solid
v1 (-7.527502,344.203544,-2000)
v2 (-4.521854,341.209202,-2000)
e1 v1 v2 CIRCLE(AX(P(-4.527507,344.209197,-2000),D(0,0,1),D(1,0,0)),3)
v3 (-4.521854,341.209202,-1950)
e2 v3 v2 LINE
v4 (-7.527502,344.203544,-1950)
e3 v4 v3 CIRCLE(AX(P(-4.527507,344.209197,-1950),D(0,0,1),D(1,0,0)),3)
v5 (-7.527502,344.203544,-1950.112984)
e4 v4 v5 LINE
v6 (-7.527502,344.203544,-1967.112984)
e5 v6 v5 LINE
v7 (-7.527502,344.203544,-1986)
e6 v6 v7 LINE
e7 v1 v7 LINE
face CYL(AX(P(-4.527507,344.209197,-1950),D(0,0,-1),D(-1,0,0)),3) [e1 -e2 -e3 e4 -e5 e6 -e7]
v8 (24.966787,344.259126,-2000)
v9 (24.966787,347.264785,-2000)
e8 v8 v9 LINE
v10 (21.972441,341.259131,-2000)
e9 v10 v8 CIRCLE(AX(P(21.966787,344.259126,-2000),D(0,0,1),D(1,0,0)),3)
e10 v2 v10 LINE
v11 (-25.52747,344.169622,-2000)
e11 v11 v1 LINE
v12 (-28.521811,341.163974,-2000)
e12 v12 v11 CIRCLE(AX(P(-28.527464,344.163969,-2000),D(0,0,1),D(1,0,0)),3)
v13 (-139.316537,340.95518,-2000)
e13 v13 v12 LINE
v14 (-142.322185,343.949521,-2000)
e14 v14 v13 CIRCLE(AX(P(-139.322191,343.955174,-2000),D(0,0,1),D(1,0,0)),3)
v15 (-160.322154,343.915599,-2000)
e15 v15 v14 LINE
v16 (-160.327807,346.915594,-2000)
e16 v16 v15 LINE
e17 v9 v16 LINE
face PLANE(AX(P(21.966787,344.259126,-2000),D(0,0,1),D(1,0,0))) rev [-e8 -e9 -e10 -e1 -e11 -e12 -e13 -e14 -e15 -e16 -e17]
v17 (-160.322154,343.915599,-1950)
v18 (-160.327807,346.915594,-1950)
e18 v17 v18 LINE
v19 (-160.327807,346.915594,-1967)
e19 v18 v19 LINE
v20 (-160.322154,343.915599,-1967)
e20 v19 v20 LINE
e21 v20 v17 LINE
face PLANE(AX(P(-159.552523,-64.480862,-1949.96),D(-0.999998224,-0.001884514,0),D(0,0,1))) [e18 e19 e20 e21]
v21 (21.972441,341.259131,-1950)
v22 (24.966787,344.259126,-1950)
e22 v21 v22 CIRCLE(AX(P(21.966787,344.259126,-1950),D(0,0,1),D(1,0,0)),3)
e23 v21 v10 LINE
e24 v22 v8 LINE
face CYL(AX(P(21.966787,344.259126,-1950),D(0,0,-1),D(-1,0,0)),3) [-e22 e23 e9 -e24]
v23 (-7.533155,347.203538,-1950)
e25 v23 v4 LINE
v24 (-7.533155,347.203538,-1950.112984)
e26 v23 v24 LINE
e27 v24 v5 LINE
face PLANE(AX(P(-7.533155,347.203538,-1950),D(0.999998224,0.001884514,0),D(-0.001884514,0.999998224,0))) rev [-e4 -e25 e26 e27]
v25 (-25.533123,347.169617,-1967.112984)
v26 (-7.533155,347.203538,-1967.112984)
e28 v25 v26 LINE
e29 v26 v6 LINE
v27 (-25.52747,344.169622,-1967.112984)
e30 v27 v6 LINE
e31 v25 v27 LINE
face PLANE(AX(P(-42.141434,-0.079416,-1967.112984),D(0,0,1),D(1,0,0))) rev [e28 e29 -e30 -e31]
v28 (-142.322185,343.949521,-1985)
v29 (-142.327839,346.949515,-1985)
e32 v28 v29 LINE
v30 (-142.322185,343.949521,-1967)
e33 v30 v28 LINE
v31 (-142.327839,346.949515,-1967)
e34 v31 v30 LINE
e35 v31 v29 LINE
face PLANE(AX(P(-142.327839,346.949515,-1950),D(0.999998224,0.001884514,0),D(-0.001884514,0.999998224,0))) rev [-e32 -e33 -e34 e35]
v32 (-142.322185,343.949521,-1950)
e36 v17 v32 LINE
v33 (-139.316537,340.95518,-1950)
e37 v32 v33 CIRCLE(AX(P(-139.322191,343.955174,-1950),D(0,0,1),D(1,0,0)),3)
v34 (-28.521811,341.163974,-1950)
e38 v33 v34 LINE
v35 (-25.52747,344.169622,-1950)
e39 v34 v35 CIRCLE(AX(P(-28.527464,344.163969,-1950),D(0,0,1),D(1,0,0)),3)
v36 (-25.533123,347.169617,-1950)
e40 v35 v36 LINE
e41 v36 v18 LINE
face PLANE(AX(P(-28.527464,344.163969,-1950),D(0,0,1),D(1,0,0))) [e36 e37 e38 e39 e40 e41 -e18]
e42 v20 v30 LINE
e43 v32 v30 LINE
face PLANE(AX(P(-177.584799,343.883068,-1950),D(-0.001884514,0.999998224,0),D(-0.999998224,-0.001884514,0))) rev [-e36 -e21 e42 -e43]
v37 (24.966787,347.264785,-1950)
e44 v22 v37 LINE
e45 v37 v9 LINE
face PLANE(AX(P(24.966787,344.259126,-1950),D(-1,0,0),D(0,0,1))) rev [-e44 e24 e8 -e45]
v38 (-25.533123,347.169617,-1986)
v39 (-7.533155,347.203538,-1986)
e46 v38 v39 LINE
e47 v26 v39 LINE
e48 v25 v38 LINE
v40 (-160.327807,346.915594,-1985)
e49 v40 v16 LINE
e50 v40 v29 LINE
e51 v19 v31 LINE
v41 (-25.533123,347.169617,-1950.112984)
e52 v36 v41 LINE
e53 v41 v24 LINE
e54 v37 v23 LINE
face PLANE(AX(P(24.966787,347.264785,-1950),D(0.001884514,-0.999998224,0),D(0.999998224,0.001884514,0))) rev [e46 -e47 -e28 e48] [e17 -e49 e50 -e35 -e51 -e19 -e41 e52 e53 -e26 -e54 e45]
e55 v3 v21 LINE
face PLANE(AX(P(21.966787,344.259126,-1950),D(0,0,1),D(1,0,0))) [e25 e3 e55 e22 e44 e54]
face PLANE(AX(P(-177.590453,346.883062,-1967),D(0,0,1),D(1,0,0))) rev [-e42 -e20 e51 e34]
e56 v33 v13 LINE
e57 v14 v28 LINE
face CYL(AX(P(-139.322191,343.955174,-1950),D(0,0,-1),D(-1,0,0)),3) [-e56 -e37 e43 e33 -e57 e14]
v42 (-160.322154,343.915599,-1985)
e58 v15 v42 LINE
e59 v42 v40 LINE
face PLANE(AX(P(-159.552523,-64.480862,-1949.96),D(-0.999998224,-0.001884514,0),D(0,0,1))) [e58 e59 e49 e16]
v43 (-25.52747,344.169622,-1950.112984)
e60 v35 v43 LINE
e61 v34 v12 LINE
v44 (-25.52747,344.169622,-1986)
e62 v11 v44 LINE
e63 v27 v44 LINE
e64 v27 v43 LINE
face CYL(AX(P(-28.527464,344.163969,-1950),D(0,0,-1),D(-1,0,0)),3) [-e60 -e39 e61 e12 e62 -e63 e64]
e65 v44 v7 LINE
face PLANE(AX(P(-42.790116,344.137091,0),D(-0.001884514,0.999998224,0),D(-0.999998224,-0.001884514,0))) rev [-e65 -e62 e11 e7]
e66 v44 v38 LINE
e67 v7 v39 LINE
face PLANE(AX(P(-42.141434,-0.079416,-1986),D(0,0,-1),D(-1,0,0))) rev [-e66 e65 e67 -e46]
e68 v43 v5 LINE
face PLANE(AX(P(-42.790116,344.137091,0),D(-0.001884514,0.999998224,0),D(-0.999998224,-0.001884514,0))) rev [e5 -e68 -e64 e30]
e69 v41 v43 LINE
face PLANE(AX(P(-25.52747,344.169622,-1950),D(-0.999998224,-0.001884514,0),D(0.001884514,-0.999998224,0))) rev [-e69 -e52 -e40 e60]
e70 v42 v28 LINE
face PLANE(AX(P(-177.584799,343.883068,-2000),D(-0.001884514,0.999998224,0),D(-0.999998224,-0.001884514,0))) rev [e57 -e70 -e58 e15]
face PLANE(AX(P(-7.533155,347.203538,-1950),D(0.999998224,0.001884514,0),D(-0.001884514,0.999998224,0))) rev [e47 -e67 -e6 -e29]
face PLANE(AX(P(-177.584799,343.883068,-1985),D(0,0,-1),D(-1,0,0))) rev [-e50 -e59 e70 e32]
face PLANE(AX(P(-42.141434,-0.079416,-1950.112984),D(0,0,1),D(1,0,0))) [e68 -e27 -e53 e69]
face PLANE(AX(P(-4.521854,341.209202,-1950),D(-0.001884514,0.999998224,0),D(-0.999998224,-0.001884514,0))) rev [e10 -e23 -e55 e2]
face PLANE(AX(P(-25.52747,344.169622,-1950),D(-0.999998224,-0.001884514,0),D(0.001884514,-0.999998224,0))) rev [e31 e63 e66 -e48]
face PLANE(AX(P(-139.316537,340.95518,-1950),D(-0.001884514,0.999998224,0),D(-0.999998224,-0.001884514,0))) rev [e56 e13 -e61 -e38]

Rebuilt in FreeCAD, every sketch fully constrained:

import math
import FreeCAD as App
import Part
import Sketcher

doc = App.newDocument("Part")
body = doc.addObject("PartDesign::Body", "Body")

# Sketch on XY plane
sketch1 = body.newObject("Sketcher::SketchObject", "Sketch")
sketch1.AttachmentSupport = (doc.getObject("XY_Plane"), [""])
sketch1.MapMode = "FlatFace"
sketch1.AttachmentOffset = App.Placement(App.Vector(0, 0, -2000), App.Rotation())
sketch1.addGeometry(Part.LineSegment(App.Vector(24.966787, 344.259126, 0), App.Vector(24.966787, 347.264785, 0)), False)
sketch1.addGeometry(Part.LineSegment(App.Vector(24.966787, 347.264785, 0), App.Vector(-7.533155, 347.203538, 0)), False)
sketch1.addGeometry(Part.LineSegment(App.Vector(-7.533155, 347.203538, 0), App.Vector(-7.527502, 344.203544, 0)), False)
sketch1.addGeometry(Part.ArcOfCircle(Part.Circle(App.Vector(-4.527507, 344.209197, 0), App.Vector(0, 0, 1), 3), math.radians(-179.892025), math.radians(-89.892025)), False)
sketch1.addGeometry(Part.LineSegment(App.Vector(-4.521854, 341.209202, 0), App.Vector(21.972441, 341.259131, 0)), False)
sketch1.addGeometry(Part.ArcOfCircle(Part.Circle(App.Vector(21.966787, 344.259126, 0), App.Vector(0, 0, 1), 3), math.radians(-89.892025), math.radians(0)), False)
sketch1.addConstraint(Sketcher.Constraint("Coincident", 0, 2, 1, 1))
sketch1.addConstraint(Sketcher.Constraint("Coincident", 1, 2, 2, 1))
sketch1.addConstraint(Sketcher.Constraint("Tangent", 2, 2, 3, 1))
sketch1.addConstraint(Sketcher.Constraint("Tangent", 3, 2, 4, 1))
sketch1.addConstraint(Sketcher.Constraint("Tangent", 4, 2, 5, 1))
sketch1.addConstraint(Sketcher.Constraint("Tangent", 5, 2, 0, 1))
sketch1.addConstraint(Sketcher.Constraint("Vertical", 0))
sketch1.addConstraint(Sketcher.Constraint("Equal", 3, 5))
sketch1.addConstraint(Sketcher.Constraint("Perpendicular", 1, 2))
sketch1.addConstraint(Sketcher.Constraint("Perpendicular", 2, 4))
sketch1.addConstraint(Sketcher.Constraint("Radius", 3, 3.0))
sketch1.addConstraint(Sketcher.Constraint("Distance", 2, 3.0))
sketch1.addConstraint(Sketcher.Constraint("Distance", 1, 32.5))
sketch1.addConstraint(Sketcher.Constraint("DistanceY", 0, 1, 0, 2, 3.005659))
sketch1.addConstraint(Sketcher.Constraint("DistanceX", 2, 2, -1, 1, 7.527502))
sketch1.addConstraint(Sketcher.Constraint("DistanceY", -1, 1, 1, 2, 347.203538))
pad1 = body.newObject("PartDesign::Pad", "Pad")
pad1.Profile = sketch1
pad1.Length = 50
body2 = doc.addObject("PartDesign::Body", "Body001")

# Sketch on XY plane
sketch2 = body2.newObject("Sketcher::SketchObject", "Sketch001")
sketch2.AttachmentSupport = (doc.getObject("XY_Plane001"), [""])
sketch2.MapMode = "FlatFace"
sketch2.AttachmentOffset = App.Placement(App.Vector(0, 0, -2000), App.Rotation())
sketch2.addGeometry(Part.LineSegment(App.Vector(-25.5, 344.2, 0), App.Vector(-25.5, 347.2, 0)), False)
sketch2.addGeometry(Part.LineSegment(App.Vector(-25.5, 347.2, 0), App.Vector(-142.3, 346.9, 0)), False)
sketch2.addGeometry(Part.LineSegment(App.Vector(-142.3, 346.9, 0), App.Vector(-142.3, 343.9, 0)), False)
sketch2.addGeometry(Part.ArcOfCircle(Part.Circle(App.Vector(-139.3, 344, 0), App.Vector(0, 0, 1), 3), math.radians(-180), math.radians(-90)), False)
sketch2.addGeometry(Part.LineSegment(App.Vector(-139.3, 341, 0), App.Vector(-28.5, 341.2, 0)), False)
sketch2.addGeometry(Part.ArcOfCircle(Part.Circle(App.Vector(-28.5, 344.2, 0), App.Vector(0, 0, 1), 3), math.radians(-90), math.radians(0)), False)
sketch2.addConstraint(Sketcher.Constraint("Coincident", 0, 2, 1, 1))
sketch2.addConstraint(Sketcher.Constraint("Coincident", 1, 2, 2, 1))
sketch2.addConstraint(Sketcher.Constraint("Tangent", 2, 2, 3, 1))
sketch2.addConstraint(Sketcher.Constraint("Tangent", 3, 2, 4, 1))
sketch2.addConstraint(Sketcher.Constraint("Tangent", 4, 2, 5, 1))
sketch2.addConstraint(Sketcher.Constraint("Tangent", 5, 2, 0, 1))
sketch2.addConstraint(Sketcher.Constraint("Equal", 3, 5))
sketch2.addConstraint(Sketcher.Constraint("Perpendicular", 0, 1))
sketch2.addConstraint(Sketcher.Constraint("Perpendicular", 1, 2))
sketch2.addConstraint(Sketcher.Constraint("Perpendicular", 2, 4))
sketch2.addConstraint(Sketcher.Constraint("Radius", 3, 3.0))
sketch2.addConstraint(Sketcher.Constraint("Distance", 0, 3.0))
sketch2.addConstraint(Sketcher.Constraint("DistanceY", 1, 2, 0, 2, 0.220102))
sketch2.addConstraint(Sketcher.Constraint("DistanceX", 3, 3, -1, 1, 139.322191))
sketch2.addConstraint(Sketcher.Constraint("DistanceY", -1, 1, 5, 3, 344.163969))
sketch2.addConstraint(Sketcher.Constraint("DistanceX", 4, 2, -1, 1, 28.521811))
pad2 = body2.newObject("PartDesign::Pad", "Pad001")
pad2.Profile = sketch2
pad2.Length = 50
body.AllowCompound = True
doc.recompute()

boolean = body.newObject("PartDesign::Boolean", "Boolean")
boolean.Type = "Fuse"
boolean.addObjects([body2])

# Sketch on an angled plane
sketch3 = body.newObject("Sketcher::SketchObject", "Sketch002")
sketch3.Placement = App.Placement(App.Vector(-6.87882, -0.012963, 0), App.Rotation(App.Vector(0, 0, 1), App.Vector(-0.001884514, 0.999998224, 0), App.Vector(-0.999998224, -0.001884514, 0), "ZXY"))
sketch3.addGeometry(Part.LineSegment(App.Vector(-1967.1, 347.2, 0), App.Vector(-1967.1, 344.2, 0)), False)
sketch3.addGeometry(Part.LineSegment(App.Vector(-1967.1, 344.2, 0), App.Vector(-1950.1, 344.2, 0)), False)
sketch3.addGeometry(Part.LineSegment(App.Vector(-1950.1, 344.2, 0), App.Vector(-1950.1, 347.2, 0)), False)
sketch3.addGeometry(Part.LineSegment(App.Vector(-1950.1, 347.2, 0), App.Vector(-1967.1, 347.2, 0)), False)
sketch3.addGeometry(Part.LineSegment(App.Vector(-2000, 347.2, 0), App.Vector(-2000, 344.2, 0)), False)
sketch3.addGeometry(Part.LineSegment(App.Vector(-2000, 344.2, 0), App.Vector(-1986, 344.2, 0)), False)
sketch3.addGeometry(Part.LineSegment(App.Vector(-1986, 344.2, 0), App.Vector(-1986, 347.2, 0)), False)
sketch3.addGeometry(Part.LineSegment(App.Vector(-1986, 347.2, 0), App.Vector(-2000, 347.2, 0)), False)
sketch3.addConstraint(Sketcher.Constraint("Coincident", 0, 2, 1, 1))
sketch3.addConstraint(Sketcher.Constraint("Coincident", 1, 2, 2, 1))
sketch3.addConstraint(Sketcher.Constraint("Coincident", 2, 2, 3, 1))
sketch3.addConstraint(Sketcher.Constraint("Coincident", 3, 2, 0, 1))
sketch3.addConstraint(Sketcher.Constraint("Coincident", 4, 2, 5, 1))
sketch3.addConstraint(Sketcher.Constraint("Coincident", 5, 2, 6, 1))
sketch3.addConstraint(Sketcher.Constraint("Coincident", 6, 2, 7, 1))
sketch3.addConstraint(Sketcher.Constraint("Coincident", 7, 2, 4, 1))
sketch3.addConstraint(Sketcher.Constraint("Vertical", 0))
sketch3.addConstraint(Sketcher.Constraint("Horizontal", 1))
sketch3.addConstraint(Sketcher.Constraint("Vertical", 2))
sketch3.addConstraint(Sketcher.Constraint("Horizontal", 3))
sketch3.addConstraint(Sketcher.Constraint("Vertical", 4))
sketch3.addConstraint(Sketcher.Constraint("Horizontal", 5))
sketch3.addConstraint(Sketcher.Constraint("Vertical", 6))
sketch3.addConstraint(Sketcher.Constraint("Horizontal", 7))
sketch3.addConstraint(Sketcher.Constraint("Horizontal", 1, 2, 4, 2))
sketch3.addConstraint(Sketcher.Constraint("Horizontal", 3, 2, 6, 2))
sketch3.addConstraint(Sketcher.Constraint("DistanceX", 1, 1, 1, 2, 17.0))
sketch3.addConstraint(Sketcher.Constraint("DistanceX", 5, 1, 5, 2, 14.0))
sketch3.addConstraint(Sketcher.Constraint("DistanceY", 0, 2, 0, 1, 3.0))
sketch3.addConstraint(Sketcher.Constraint("DistanceX", 4, 2, -1, 1, 2000.0))
sketch3.addConstraint(Sketcher.Constraint("DistanceX", 0, 2, -1, 1, 1967.112984))
sketch3.addConstraint(Sketcher.Constraint("DistanceY", -1, 1, 0, 2, 344.217118))
pad3 = body.newObject("PartDesign::Pad", "Pad002")
pad3.Profile = sketch3
pad3.Length = 18

# Sketch on an angled plane
sketch4 = body.newObject("Sketcher::SketchObject", "Sketch003")
sketch4.Placement = App.Placement(App.Vector(-141.673504, -0.266986, 0), App.Rotation(App.Vector(0, 0, 1), App.Vector(-0.001884514, 0.999998224, 0), App.Vector(-0.999998224, -0.001884514, 0), "ZXY"))
sketch4.addGeometry(Part.LineSegment(App.Vector(-1967, 347.2, 0), App.Vector(-1967, 344.2, 0)), False)
sketch4.addGeometry(Part.LineSegment(App.Vector(-1967, 344.2, 0), App.Vector(-1950, 344.2, 0)), False)
sketch4.addGeometry(Part.LineSegment(App.Vector(-1950, 344.2, 0), App.Vector(-1950, 347.2, 0)), False)
sketch4.addGeometry(Part.LineSegment(App.Vector(-1950, 347.2, 0), App.Vector(-1967, 347.2, 0)), False)
sketch4.addGeometry(Part.LineSegment(App.Vector(-2000, 347.2, 0), App.Vector(-2000, 344.2, 0)), False)
sketch4.addGeometry(Part.LineSegment(App.Vector(-2000, 344.2, 0), App.Vector(-1985, 344.2, 0)), False)
sketch4.addGeometry(Part.LineSegment(App.Vector(-1985, 344.2, 0), App.Vector(-1985, 347.2, 0)), False)
sketch4.addGeometry(Part.LineSegment(App.Vector(-1985, 347.2, 0), App.Vector(-2000, 347.2, 0)), False)
sketch4.addConstraint(Sketcher.Constraint("Coincident", 0, 2, 1, 1))
sketch4.addConstraint(Sketcher.Constraint("Coincident", 1, 2, 2, 1))
sketch4.addConstraint(Sketcher.Constraint("Coincident", 2, 2, 3, 1))
sketch4.addConstraint(Sketcher.Constraint("Coincident", 3, 2, 0, 1))
sketch4.addConstraint(Sketcher.Constraint("Coincident", 4, 2, 5, 1))
sketch4.addConstraint(Sketcher.Constraint("Coincident", 5, 2, 6, 1))
sketch4.addConstraint(Sketcher.Constraint("Coincident", 6, 2, 7, 1))
sketch4.addConstraint(Sketcher.Constraint("Coincident", 7, 2, 4, 1))
sketch4.addConstraint(Sketcher.Constraint("Vertical", 0))
sketch4.addConstraint(Sketcher.Constraint("Horizontal", 1))
sketch4.addConstraint(Sketcher.Constraint("Vertical", 2))
sketch4.addConstraint(Sketcher.Constraint("Horizontal", 3))
sketch4.addConstraint(Sketcher.Constraint("Vertical", 4))
sketch4.addConstraint(Sketcher.Constraint("Horizontal", 5))
sketch4.addConstraint(Sketcher.Constraint("Vertical", 6))
sketch4.addConstraint(Sketcher.Constraint("Horizontal", 7))
sketch4.addConstraint(Sketcher.Constraint("Horizontal", 1, 2, 4, 2))
sketch4.addConstraint(Sketcher.Constraint("Horizontal", 3, 2, 6, 2))
sketch4.addConstraint(Sketcher.Constraint("DistanceX", 1, 1, 1, 2, 17.0))
sketch4.addConstraint(Sketcher.Constraint("DistanceX", 5, 1, 5, 2, 15.0))
sketch4.addConstraint(Sketcher.Constraint("DistanceY", 0, 2, 0, 1, 3.0))
sketch4.addConstraint(Sketcher.Constraint("DistanceX", 0, 2, -1, 1, 1967.0))
sketch4.addConstraint(Sketcher.Constraint("DistanceX", 4, 2, -1, 1, 2000.0))
sketch4.addConstraint(Sketcher.Constraint("DistanceY", -1, 1, 0, 2, 344.217118))
pad4 = body.newObject("PartDesign::Pad", "Pad003")
pad4.Profile = sketch4
pad4.Length = 18

doc.recompute()
